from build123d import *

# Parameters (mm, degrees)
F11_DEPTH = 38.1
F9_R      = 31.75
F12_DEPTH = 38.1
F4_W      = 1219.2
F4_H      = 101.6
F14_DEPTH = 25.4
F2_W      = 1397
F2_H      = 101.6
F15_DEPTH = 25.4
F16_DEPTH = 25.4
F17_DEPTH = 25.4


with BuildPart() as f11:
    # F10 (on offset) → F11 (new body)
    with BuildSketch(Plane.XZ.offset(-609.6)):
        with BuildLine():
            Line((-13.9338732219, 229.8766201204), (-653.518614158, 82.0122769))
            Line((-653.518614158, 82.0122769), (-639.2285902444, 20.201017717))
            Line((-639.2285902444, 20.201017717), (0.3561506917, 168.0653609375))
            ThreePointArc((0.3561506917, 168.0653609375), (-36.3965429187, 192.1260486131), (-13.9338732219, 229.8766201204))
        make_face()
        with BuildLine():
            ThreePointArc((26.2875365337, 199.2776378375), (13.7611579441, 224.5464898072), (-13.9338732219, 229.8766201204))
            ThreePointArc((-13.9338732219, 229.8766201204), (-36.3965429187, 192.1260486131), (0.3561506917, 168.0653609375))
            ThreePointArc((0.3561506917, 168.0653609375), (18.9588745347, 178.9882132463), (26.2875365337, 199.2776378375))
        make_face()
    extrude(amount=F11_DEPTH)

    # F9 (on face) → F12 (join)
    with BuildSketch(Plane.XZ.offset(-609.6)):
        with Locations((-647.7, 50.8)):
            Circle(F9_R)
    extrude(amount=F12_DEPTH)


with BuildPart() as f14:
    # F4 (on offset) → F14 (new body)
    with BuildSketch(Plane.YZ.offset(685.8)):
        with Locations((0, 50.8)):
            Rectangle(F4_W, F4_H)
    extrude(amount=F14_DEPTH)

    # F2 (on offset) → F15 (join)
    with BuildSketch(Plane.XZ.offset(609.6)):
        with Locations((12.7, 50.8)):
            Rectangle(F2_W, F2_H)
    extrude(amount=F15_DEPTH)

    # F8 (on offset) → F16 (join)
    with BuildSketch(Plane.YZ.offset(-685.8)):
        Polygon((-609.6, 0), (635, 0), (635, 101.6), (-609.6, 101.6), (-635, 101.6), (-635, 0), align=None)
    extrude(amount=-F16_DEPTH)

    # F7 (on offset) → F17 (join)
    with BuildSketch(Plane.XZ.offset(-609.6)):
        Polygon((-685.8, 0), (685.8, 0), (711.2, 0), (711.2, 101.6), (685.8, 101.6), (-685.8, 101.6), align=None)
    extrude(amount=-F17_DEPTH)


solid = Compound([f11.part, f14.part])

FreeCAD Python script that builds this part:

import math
import FreeCAD as App
import Part
import Sketcher

V = App.Vector
Q = App.Units.Quantity


def add_polygon(sketch, points):
    """Adds a closed chain of lines whose ends are joined by coincident constraints."""
    first, n = sketch.GeometryCount, len(points)
    for a, b in zip(points, points[1:] + points[:1]):
        sketch.addGeometry(Part.LineSegment(App.Vector(*a, 0), App.Vector(*b, 0)), False)
    for i in range(n):
        sketch.addConstraint(Sketcher.Constraint("Coincident", first + i, 2, first + (i + 1) % n, 1))

doc = App.newDocument("Part")
body = doc.addObject("PartDesign::Body", "Body")

# Sketch on XZ plane
sketch1 = doc.addObject("Sketcher::SketchObject", "Sketch")
body.addObject(sketch1)
sketch1.AttachmentSupport = (doc.XZ_Plane, [""])
sketch1.MapMode = "FlatFace"
sketch1.AttachmentOffset = App.Placement(V(0, 0, -24 * 25.4), App.Rotation())
sketch1.addGeometry([
    Part.LineSegment(V(-13.933873, 229.87662, 0), V(-653.518614, 82.012277, 0)),
    Part.LineSegment(V(-653.518614, 82.012277, 0), V(-639.22859, 20.201018, 0)),
    Part.LineSegment(V(-639.22859, 20.201018, 0), V(0.356151, 168.065361, 0)),
    Part.ArcOfCircle(Part.Circle(V(-5.462463, 199.277638, 0), V(0, 0, 1), 31.75), math.radians(-79.440096), math.radians(105.474891)),
], False)
sketch1.addConstraint([
    Sketcher.Constraint("Coincident", 0, 2, 1, 1),
    Sketcher.Constraint("Coincident", 1, 2, 2, 1),
    Sketcher.Constraint("Coincident", 2, 2, 3, 1),
    Sketcher.Constraint("Coincident", 3, 2, 0, 1),
    Sketcher.Constraint("Radius", 3, Q("1.25 in")),
    Sketcher.Constraint("Distance", 1, Q("63.441599 mm")),
    Sketcher.Constraint("DistanceX", 1, 2, -1, 1, Q("639.22859 mm")),
    Sketcher.Constraint("DistanceX", -1, 1, 2, 2, Q("0.356151 mm")),
    Sketcher.Constraint("DistanceY", -1, 1, 2, 2, Q("168.065361 mm")),
    Sketcher.Constraint("DistanceY", -1, 1, 3, 2, Q("229.87662 mm")),
    Sketcher.Constraint("DistanceX", 0, 2, 3, 3, Q("648.056151 mm")),
    Sketcher.Constraint("DistanceY", 0, 2, 3, 3, Q("117.265361 mm")),
    Sketcher.Constraint("DistanceY", 1, 2, 0, 2, Q("61.811259 mm")),
])
pad1 = doc.addObject("PartDesign::Pad", "Pad")
body.addObject(pad1)
pad1.Profile = sketch1
pad1.Length = Q("1.5 in")

# Sketch on XZ plane
sketch2 = doc.addObject("Sketcher::SketchObject", "Sketch001")
body.addObject(sketch2)
sketch2.AttachmentSupport = (doc.XZ_Plane, [""])
sketch2.MapMode = "FlatFace"
sketch2.AttachmentOffset = App.Placement(V(0, 0, -24 * 25.4), App.Rotation())
sketch2.addGeometry(Part.Circle(V(-648, 51, 0), V(0, 0, 1), 32), False)
sketch2.addConstraint([
    Sketcher.Constraint("Diameter", 0, Q("2.5 in")),
    Sketcher.Constraint("DistanceY", -1, 1, 0, 3, Q("2 in")),
    Sketcher.Constraint("DistanceX", 0, 3, -1, 1, Q("25.5 in")),
])
pad2 = doc.addObject("PartDesign::Pad", "Pad001")
body.addObject(pad2)
pad2.Profile = sketch2
pad2.Length = Q("1.5 in")
body2 = doc.addObject("PartDesign::Body", "Body001")

# Sketch on YZ plane
sketch3 = doc.addObject("Sketcher::SketchObject", "Sketch002")
body2.addObject(sketch3)
sketch3.AttachmentSupport = (doc.getObject("YZ_Plane001"), [""])
sketch3.MapMode = "FlatFace"
sketch3.AttachmentOffset = App.Placement(V(0, 0, 27 * 25.4), App.Rotation())
add_polygon(sketch3, [(-610, 102), (-610, 0), (610, 0), (610, 102)])  # lines 0-3
sketch3.addConstraint([
    Sketcher.Constraint("Vertical", 0),
    Sketcher.Constraint("Horizontal", 1),
    Sketcher.Constraint("Vertical", 2),
    Sketcher.Constraint("Horizontal", 3),
    Sketcher.Constraint("Symmetric", 0, 2, 1, 2, -1, 1),
    Sketcher.Constraint("DistanceX", 1, 1, 1, 2, Q("48 in")),
    Sketcher.Constraint("DistanceY", 0, 2, 0, 1, Q("4 in")),
])
pad3 = doc.addObject("PartDesign::Pad", "Pad002")
body2.addObject(pad3)
pad3.Profile = sketch3
pad3.Length = Q("1 in")

# Sketch on XZ plane
sketch4 = doc.addObject("Sketcher::SketchObject", "Sketch003")
body2.addObject(sketch4)
sketch4.AttachmentSupport = (doc.getObject("XZ_Plane001"), [""])
sketch4.MapMode = "FlatFace"
sketch4.AttachmentOffset = App.Placement(V(0, 0, 24 * 25.4), App.Rotation())
add_polygon(sketch4, [(-686, 102), (-686, 0), (711, 0), (711, 102)])  # lines 0-3
sketch4.addConstraint([
    Sketcher.Constraint("Vertical", 0),
    Sketcher.Constraint("Horizontal", 1),
    Sketcher.Constraint("Vertical", 2),
    Sketcher.Constraint("Horizontal", 3),
    Sketcher.Constraint("PointOnObject", 0, 2, -1),
    Sketcher.Constraint("DistanceX", 1, 1, 1, 2, Q("55 in")),
    Sketcher.Constraint("DistanceY", 0, 2, 0, 1, Q("4 in")),
    Sketcher.Constraint("DistanceX", 0, 2, -1, 1, Q("27 in")),
])
pad4 = doc.addObject("PartDesign::Pad", "Pad003")
body2.addObject(pad4)
pad4.Profile = sketch4
pad4.Length = Q("1 in")

# Sketch on YZ plane
sketch5 = doc.addObject("Sketcher::SketchObject", "Sketch004")
body2.addObject(sketch5)
sketch5.AttachmentSupport = (doc.getObject("YZ_Plane001"), [""])
sketch5.MapMode = "FlatFace"
sketch5.AttachmentOffset = App.Placement(V(0, 0, -27 * 25.4), App.Rotation())
add_polygon(sketch5, [(635, 0), (635, 102), (-635, 102), (-635, 0)])  # lines 0-3
sketch5.addConstraint([
    Sketcher.Constraint("Vertical", 0),
    Sketcher.Constraint("Horizontal", 1),
    Sketcher.Constraint("Vertical", 2),
    Sketcher.Constraint("Horizontal", 3),
    Sketcher.Constraint("Symmetric", 2, 2, 3, 2, -1, 1),
    Sketcher.Constraint("DistanceX", 1, 2, 1, 1, Q("50 in")),
    Sketcher.Constraint("DistanceY", 0, 1, 0, 2, Q("4 in")),
])
pad5 = doc.addObject("PartDesign::Pad", "Pad004")
body2.addObject(pad5)
pad5.Profile = sketch5
pad5.Length = Q("1 in")
pad5.Reversed = True

# Sketch on XZ plane
sketch6 = doc.addObject("Sketcher::SketchObject", "Sketch005")
body2.addObject(sketch6)
sketch6.AttachmentSupport = (doc.getObject("XZ_Plane001"), [""])
sketch6.MapMode = "FlatFace"
sketch6.AttachmentOffset = App.Placement(V(0, 0, -24 * 25.4), App.Rotation())
add_polygon(sketch6, [(-686, 0), (711, 0), (711, 102), (-686, 102)])  # lines 0-3
sketch6.addConstraint([
    Sketcher.Constraint("Horizontal", 0),
    Sketcher.Constraint("Vertical", 1),
    Sketcher.Constraint("Horizontal", 2),
    Sketcher.Constraint("Vertical", 3),
    Sketcher.Constraint("PointOnObject", 0, 2, -1),
    Sketcher.Constraint("DistanceX", 0, 1, 0, 2, Q("55 in")),
    Sketcher.Constraint("DistanceY", 1, 1, 1, 2, Q("4 in")),
    Sketcher.Constraint("DistanceX", -1, 1, 0, 2, Q("28 in")),
])
pad6 = doc.addObject("PartDesign::Pad", "Pad005")
body2.addObject(pad6)
pad6.Profile = sketch6
pad6.Length = Q("1 in")
pad6.Reversed = True

doc.recompute()
